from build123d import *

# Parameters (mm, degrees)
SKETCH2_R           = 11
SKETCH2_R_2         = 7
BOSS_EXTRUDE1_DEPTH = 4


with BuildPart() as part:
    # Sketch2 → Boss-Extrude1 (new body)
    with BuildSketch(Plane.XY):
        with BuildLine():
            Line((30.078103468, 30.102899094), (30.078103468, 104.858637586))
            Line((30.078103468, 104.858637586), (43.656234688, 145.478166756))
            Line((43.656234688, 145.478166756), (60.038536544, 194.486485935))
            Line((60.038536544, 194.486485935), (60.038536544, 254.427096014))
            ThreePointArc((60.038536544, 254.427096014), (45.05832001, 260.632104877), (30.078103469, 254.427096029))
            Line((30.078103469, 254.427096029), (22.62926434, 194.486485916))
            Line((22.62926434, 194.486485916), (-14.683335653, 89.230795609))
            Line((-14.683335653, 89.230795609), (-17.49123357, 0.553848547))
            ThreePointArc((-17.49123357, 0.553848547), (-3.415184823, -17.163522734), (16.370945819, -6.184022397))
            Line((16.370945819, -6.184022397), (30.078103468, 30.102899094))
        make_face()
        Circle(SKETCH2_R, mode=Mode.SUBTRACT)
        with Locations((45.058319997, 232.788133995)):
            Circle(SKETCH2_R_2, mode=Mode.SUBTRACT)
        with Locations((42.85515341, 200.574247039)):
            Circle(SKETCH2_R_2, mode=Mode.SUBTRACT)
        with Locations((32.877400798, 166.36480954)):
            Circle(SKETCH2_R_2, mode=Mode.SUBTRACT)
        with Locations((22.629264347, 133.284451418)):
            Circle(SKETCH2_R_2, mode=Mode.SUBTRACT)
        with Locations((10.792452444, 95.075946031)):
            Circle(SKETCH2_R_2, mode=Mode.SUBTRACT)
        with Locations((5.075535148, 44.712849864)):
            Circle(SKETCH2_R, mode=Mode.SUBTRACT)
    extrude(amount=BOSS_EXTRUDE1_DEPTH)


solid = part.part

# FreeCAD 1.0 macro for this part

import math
import FreeCAD as App
import Part
import Sketcher

V = App.Vector

doc = App.newDocument("Part")
body = doc.addObject("PartDesign::Body", "Body")

sketch1 = body.newObject("Sketcher::SketchObject", "Sketch")
sketch1.AttachmentSupport = (doc.getObject("XY_Plane"), [""])
sketch1.MapMode = "FlatFace"
sketch1.addGeometry([
    Part.LineSegment(V(30, 30, 0), V(30, 105, 0)),
    Part.LineSegment(V(30, 105, 0), V(44, 145, 0)),
    Part.LineSegment(V(44, 145, 0), V(60, 194, 0)),
    Part.LineSegment(V(60, 194, 0), V(60, 254, 0)),
    Part.ArcOfCircle(Part.Circle(V(45, 239, 0), V(0, 0, 1), 21), math.radians(45), math.radians(135)),
    Part.LineSegment(V(30, 254, 0), V(23, 194, 0)),
    Part.LineSegment(V(23, 194, 0), V(-15, 89, 0)),
    Part.LineSegment(V(-15, 89, 0), V(-17, 1, 0)),
    Part.ArcOfCircle(Part.Circle(V(0, 0, 0), V(0, 0, 1), 18), math.radians(178), math.radians(339)),
    Part.LineSegment(V(16, -6, 0), V(30, 30, 0)),
    Part.Circle(V(0, 0, 0), V(0, 0, 1), 11),
    Part.Circle(V(5, 45, 0), V(0, 0, 1), 11),
    Part.Circle(V(11, 95, 0), V(0, 0, 1), 7),
    Part.Circle(V(23, 133, 0), V(0, 0, 1), 7),
    Part.Circle(V(33, 166, 0), V(0, 0, 1), 7),
    Part.Circle(V(43, 201, 0), V(0, 0, 1), 7),
    Part.Circle(V(45, 233, 0), V(0, 0, 1), 7),
], False)
sketch1.addConstraint([
    Sketcher.Constraint("Coincident", 0, 2, 1, 1),
    Sketcher.Constraint("Coincident", 1, 2, 2, 1),
    Sketcher.Constraint("Coincident", 2, 2, 3, 1),
    Sketcher.Constraint("Coincident", 3, 2, 4, 1),
    Sketcher.Constraint("Coincident", 4, 2, 5, 1),
    Sketcher.Constraint("Coincident", 5, 2, 6, 1),
    Sketcher.Constraint("Coincident", 6, 2, 7, 1),
    Sketcher.Constraint("Tangent", 7, 2, 8, 1),
    Sketcher.Constraint("Tangent", 8, 2, 9, 1),
    Sketcher.Constraint("Coincident", 9, 2, 0, 1),
    Sketcher.Constraint("Vertical", 0),
    Sketcher.Constraint("Vertical", 3),
    Sketcher.Constraint("Coincident", 8, 3, -1, 1),
    Sketcher.Constraint("Coincident", 10, 3, -1, 1),
    Sketcher.Constraint("Equal", 10, 11),
    Sketcher.Constraint("Equal", 12, 13),
    Sketcher.Constraint("Equal", 13, 14),
    Sketcher.Constraint("Equal", 14, 15),
    Sketcher.Constraint("Equal", 15, 16),
    Sketcher.Constraint("Parallel", 1, 2),
    Sketcher.Constraint("Horizontal", 3, 2, 4, 2),
    Sketcher.Constraint("Horizontal", 2, 2, 5, 2),
    Sketcher.Constraint("Vertical", 4, 3, 16, 3),
    Sketcher.Constraint("Vertical", 0, 2, 4, 2),
    Sketcher.Constraint("Vertical", 13, 3, 5, 2),
    Sketcher.Constraint("Diameter", 10, 22.0),
    Sketcher.Constraint("Diameter", 12, 14.0),
    Sketcher.Constraint("Radius", 8, 17.5),
    Sketcher.Constraint("Radius", 4, 21.185225),
    Sketcher.Constraint("DistanceY", 7, 2, 11, 3, 44.159001),
    Sketcher.Constraint("DistanceY", 0, 1, 0, 2, 74.755738),
    Sketcher.Constraint("DistanceY", 3, 1, 3, 2, 59.94061),
    Sketcher.Constraint("DistanceX", -1, 1, 14, 3, 32.877401),
    Sketcher.Constraint("DistanceY", -1, 1, 9, 2, 30.102899),
    Sketcher.Constraint("DistanceY", 11, 3, 13, 3, 88.571602),
    Sketcher.Constraint("DistanceX", 12, 3, 15, 3, 32.062701),
    Sketcher.Constraint("DistanceY", 12, 3, 15, 3, 105.498301),
    Sketcher.Constraint("DistanceX", 1, 2, 2, 2, 16.382302),
    Sketcher.Constraint("DistanceX", 6, 2, 13, 3, 37.3126),
    Sketcher.Constraint("Distance", 2, 51.673931),
    Sketcher.Constraint("Distance", 5, 60.401672),
    Sketcher.Constraint("Distance", 6, 111.673589),
    Sketcher.Constraint("Distance", 7, 88.721391),
    Sketcher.Constraint("Distance", 9, 38.78952),
    Sketcher.Constraint("DistanceY", -1, 1, 14, 3, 166.36481),
    Sketcher.Constraint("DistanceX", 12, 3, 13, 3, 11.836812),
    Sketcher.Constraint("DistanceX", 11, 3, 13, 3, 17.553729),
    Sketcher.Constraint("DistanceY", 12, 3, 0, 2, 9.782692),
    Sketcher.Constraint("DistanceY", 2, 2, 16, 3, 38.301648),
])
pad1 = body.newObject("PartDesign::Pad", "Pad")
pad1.Profile = sketch1
pad1.Length = 4

doc.recompute()
